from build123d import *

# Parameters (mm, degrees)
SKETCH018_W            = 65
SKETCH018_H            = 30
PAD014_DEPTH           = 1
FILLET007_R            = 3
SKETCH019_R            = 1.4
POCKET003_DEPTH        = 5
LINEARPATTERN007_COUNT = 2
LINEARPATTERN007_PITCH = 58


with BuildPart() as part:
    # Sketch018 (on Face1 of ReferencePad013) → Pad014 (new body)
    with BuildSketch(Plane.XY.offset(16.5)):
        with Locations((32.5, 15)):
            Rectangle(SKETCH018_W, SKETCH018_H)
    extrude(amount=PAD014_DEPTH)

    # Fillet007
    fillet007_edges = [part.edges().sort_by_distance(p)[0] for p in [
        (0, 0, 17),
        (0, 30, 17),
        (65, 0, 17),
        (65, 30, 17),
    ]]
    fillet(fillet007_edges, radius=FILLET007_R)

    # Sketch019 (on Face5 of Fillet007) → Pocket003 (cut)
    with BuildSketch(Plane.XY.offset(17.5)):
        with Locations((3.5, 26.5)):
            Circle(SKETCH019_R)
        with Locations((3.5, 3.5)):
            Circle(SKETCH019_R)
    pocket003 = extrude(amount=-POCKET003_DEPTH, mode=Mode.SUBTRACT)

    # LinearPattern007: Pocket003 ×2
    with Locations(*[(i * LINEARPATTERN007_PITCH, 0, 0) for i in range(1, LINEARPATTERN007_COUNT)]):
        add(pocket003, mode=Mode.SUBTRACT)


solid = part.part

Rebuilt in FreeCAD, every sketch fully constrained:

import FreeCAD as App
import Part
import Sketcher

V = App.Vector
Q = App.Units.Quantity


def edges_at(feature, points):
    """Names of the edges that pass closest to the given points."""
    edges = feature.Shape.Edges
    near = lambda p: min(range(len(edges)), key=lambda i: edges[i].distToShape(Part.Vertex(*p))[0])
    return sorted({f"Edge{near(p) + 1}" for p in points})

doc = App.newDocument("Part")
body = doc.addObject("PartDesign::Body", "Body")

sketch1 = doc.addObject("Sketcher::SketchObject", "Sketch")
body.addObject(sketch1)
sketch1.AttachmentSupport = (doc.XY_Plane, [""])
sketch1.MapMode = "FlatFace"
sketch1.AttachmentOffset = App.Placement(V(0, 0, 16.5), App.Rotation())
sketch1.addGeometry(Part.LineSegment(V(0, 30, 0), V(0, 0, 0)), False)
sketch1.addGeometry(Part.LineSegment(V(0, 0, 0), V(65, 0, 0)), False)
sketch1.addGeometry(Part.LineSegment(V(65, 0, 0), V(65, 30, 0)), False)
sketch1.addGeometry(Part.LineSegment(V(65, 30, 0), V(0, 30, 0)), False)
sketch1.addConstraint(Sketcher.Constraint("Coincident", 0, 2, 1, 1))
sketch1.addConstraint(Sketcher.Constraint("Coincident", 1, 2, 2, 1))
sketch1.addConstraint(Sketcher.Constraint("Coincident", 2, 2, 3, 1))
sketch1.addConstraint(Sketcher.Constraint("Coincident", 3, 2, 0, 1))
sketch1.addConstraint(Sketcher.Constraint("Vertical", 0))
sketch1.addConstraint(Sketcher.Constraint("Horizontal", 1))
sketch1.addConstraint(Sketcher.Constraint("Vertical", 2))
sketch1.addConstraint(Sketcher.Constraint("Horizontal", 3))
sketch1.addConstraint(Sketcher.Constraint("Coincident", 0, 2, -1, 1))
sketch1.addConstraint(Sketcher.Constraint("DistanceX", 1, 1, 1, 2, Q("65 mm")))
sketch1.addConstraint(Sketcher.Constraint("DistanceY", 0, 2, 0, 1, Q("30 mm")))
pad1 = doc.addObject("PartDesign::Pad", "Pad")
body.addObject(pad1)
pad1.Profile = sketch1
pad1.Length = 1
doc.recompute()

fillet = doc.addObject("PartDesign::Fillet", "Fillet")
body.addObject(fillet)
fillet.Base = (pad1, edges_at(pad1, [
    (0, 0, 17),
    (0, 30, 17),
    (65, 0, 17),
    (65, 30, 17),
]))
fillet.Radius = 3

sketch2 = doc.addObject("Sketcher::SketchObject", "Sketch001")
body.addObject(sketch2)
sketch2.AttachmentSupport = (doc.XY_Plane, [""])
sketch2.MapMode = "FlatFace"
sketch2.AttachmentOffset = App.Placement(V(0, 0, 17.5), App.Rotation())
sketch2.addGeometry(Part.Circle(V(3.5, 26.5, 0), V(0, 0, 1), 1.4), False)
sketch2.addGeometry(Part.Circle(V(3.5, 3.5, 0), V(0, 0, 1), 1.4), False)
sketch2.addConstraint(Sketcher.Constraint("Equal", 0, 1))
sketch2.addConstraint(Sketcher.Constraint("Vertical", 0, 3, 1, 3))
sketch2.addConstraint(Sketcher.Constraint("Diameter", 0, Q("2.8 mm")))
sketch2.addConstraint(Sketcher.Constraint("DistanceY", 1, 3, 0, 3, Q("23 mm")))
sketch2.addConstraint(Sketcher.Constraint("DistanceX", -1, 1, 0, 3, Q("3.5 mm")))
sketch2.addConstraint(Sketcher.Constraint("DistanceY", -1, 1, 0, 3, Q("26.5 mm")))
pocket1 = doc.addObject("PartDesign::Pocket", "Pocket")
body.addObject(pocket1)
pocket1.Profile = sketch2
pocket1.Length = 5
doc.recompute()

linearpattern = doc.addObject("PartDesign::LinearPattern", "LinearPattern")
body.addObject(linearpattern)
linearpattern.Originals = [pocket1]
linearpattern.Direction = (doc.X_Axis, [""])
linearpattern.Mode = "offset"
linearpattern.Offset = 58
linearpattern.Occurrences = 2
body.Tip = linearpattern

doc.recompute()
